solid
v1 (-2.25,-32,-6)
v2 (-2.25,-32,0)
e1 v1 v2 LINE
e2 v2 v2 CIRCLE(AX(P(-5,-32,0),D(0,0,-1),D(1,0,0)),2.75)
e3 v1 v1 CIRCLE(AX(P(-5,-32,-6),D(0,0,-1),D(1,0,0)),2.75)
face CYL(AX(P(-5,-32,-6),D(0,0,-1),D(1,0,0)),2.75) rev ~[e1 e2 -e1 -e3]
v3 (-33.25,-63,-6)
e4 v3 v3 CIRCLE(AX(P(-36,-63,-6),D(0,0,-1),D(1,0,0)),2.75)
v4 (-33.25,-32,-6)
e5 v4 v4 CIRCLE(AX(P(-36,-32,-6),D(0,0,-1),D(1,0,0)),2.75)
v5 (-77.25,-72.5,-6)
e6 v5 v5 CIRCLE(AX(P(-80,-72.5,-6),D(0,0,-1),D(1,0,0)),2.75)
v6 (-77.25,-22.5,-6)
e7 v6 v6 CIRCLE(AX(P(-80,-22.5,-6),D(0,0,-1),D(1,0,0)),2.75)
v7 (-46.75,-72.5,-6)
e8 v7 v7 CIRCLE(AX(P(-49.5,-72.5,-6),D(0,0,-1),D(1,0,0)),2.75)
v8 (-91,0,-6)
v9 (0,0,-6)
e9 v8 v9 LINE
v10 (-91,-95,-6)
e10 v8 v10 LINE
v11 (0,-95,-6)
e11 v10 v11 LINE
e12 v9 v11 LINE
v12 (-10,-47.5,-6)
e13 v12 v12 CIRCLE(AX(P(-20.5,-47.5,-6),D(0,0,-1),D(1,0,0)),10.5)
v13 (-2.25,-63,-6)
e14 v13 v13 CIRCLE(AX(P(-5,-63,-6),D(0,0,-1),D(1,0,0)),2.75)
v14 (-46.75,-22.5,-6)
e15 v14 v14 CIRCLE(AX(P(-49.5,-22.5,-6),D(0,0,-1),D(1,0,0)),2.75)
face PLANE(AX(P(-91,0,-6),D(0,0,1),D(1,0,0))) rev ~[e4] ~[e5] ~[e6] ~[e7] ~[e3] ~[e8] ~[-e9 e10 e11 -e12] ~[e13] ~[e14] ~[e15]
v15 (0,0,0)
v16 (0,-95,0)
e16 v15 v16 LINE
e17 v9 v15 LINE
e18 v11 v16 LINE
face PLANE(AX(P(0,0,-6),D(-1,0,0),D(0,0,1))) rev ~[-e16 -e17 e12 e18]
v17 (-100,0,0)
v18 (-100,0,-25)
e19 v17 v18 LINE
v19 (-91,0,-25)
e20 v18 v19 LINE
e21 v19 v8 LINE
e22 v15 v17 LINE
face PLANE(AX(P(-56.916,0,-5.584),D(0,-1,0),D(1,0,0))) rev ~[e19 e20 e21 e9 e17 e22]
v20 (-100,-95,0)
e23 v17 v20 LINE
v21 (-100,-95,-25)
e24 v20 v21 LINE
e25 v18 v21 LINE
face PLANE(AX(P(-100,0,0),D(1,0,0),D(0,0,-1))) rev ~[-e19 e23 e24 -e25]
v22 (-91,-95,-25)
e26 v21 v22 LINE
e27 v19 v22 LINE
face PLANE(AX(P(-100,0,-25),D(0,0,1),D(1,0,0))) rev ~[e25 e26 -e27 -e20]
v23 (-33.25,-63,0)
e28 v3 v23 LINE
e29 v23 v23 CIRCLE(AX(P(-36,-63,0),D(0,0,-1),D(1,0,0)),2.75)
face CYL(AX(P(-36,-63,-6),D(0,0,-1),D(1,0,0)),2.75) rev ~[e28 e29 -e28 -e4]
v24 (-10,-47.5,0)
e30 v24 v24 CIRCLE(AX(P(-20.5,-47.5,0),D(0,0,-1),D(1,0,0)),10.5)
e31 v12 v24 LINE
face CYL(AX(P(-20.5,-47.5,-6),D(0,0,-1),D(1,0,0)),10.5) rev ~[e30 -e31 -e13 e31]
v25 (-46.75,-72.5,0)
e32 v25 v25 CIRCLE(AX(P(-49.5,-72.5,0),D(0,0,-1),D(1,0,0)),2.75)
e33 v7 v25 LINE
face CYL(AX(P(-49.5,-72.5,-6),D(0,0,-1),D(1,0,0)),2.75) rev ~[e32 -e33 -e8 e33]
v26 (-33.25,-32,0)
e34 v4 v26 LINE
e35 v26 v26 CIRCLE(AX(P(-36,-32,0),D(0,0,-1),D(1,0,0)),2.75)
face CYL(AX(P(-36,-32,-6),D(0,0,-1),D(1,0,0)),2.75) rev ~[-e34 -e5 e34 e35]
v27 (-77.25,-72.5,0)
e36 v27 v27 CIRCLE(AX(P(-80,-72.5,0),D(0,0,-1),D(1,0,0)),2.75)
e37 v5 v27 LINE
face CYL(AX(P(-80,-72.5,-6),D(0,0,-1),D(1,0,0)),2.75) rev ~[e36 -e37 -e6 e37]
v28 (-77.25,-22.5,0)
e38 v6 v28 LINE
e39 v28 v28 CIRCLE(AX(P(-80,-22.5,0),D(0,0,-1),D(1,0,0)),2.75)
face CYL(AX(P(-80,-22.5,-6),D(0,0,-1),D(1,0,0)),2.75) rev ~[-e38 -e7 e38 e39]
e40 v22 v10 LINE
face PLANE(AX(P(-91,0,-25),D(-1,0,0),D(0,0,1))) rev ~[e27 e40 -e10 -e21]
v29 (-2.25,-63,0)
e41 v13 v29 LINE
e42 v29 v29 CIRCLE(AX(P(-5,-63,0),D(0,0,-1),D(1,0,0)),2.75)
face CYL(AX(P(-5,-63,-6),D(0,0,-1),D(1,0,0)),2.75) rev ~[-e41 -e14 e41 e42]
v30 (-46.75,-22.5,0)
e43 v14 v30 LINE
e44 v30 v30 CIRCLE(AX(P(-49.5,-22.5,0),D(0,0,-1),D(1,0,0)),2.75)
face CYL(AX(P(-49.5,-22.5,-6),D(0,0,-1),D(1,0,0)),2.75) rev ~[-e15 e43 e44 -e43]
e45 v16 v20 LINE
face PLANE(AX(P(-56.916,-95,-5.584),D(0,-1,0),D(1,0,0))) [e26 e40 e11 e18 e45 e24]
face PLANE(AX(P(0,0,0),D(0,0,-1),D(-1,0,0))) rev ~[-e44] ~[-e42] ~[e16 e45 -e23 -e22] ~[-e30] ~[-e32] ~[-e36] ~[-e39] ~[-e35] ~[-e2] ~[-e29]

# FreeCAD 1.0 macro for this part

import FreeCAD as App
import Part
import Sketcher
Q = App.Units.Quantity

doc = App.newDocument("Part")
body = doc.addObject("PartDesign::Body", "Body")

# Sketch on XZ plane
sketch1 = body.newObject("Sketcher::SketchObject", "Sketch")
sketch1.AttachmentSupport = (doc.getObject("XZ_Plane"), [""])
sketch1.MapMode = "FlatFace"
sketch1.addGeometry([
    Part.LineSegment(App.Vector(0, -6, 0), App.Vector(0, 0, 0)),  # 0
    Part.LineSegment(App.Vector(0, 0, 0), App.Vector(-100, 0, 0)),  # 1
    Part.LineSegment(App.Vector(-100, 0, 0), App.Vector(-100, -25, 0)),  # 2
    Part.LineSegment(App.Vector(-100, -25, 0), App.Vector(-91, -25, 0)),  # 3
    Part.LineSegment(App.Vector(-91, -25, 0), App.Vector(-91, -6, 0)),  # 4
    Part.LineSegment(App.Vector(-91, -6, 0), App.Vector(0, -6, 0)),  # 5
], False)
sketch1.addConstraint([
    Sketcher.Constraint("Coincident", 0, 2, 1, 1),
    Sketcher.Constraint("Coincident", 1, 2, 2, 1),
    Sketcher.Constraint("Coincident", 2, 2, 3, 1),
    Sketcher.Constraint("Coincident", 3, 2, 4, 1),
    Sketcher.Constraint("Coincident", 4, 2, 5, 1),
    Sketcher.Constraint("Coincident", 5, 2, 0, 1),
    Sketcher.Constraint("Vertical", 0),
    Sketcher.Constraint("Horizontal", 1),
    Sketcher.Constraint("Vertical", 2),
    Sketcher.Constraint("Horizontal", 3),
    Sketcher.Constraint("Vertical", 4),
    Sketcher.Constraint("Horizontal", 5),
    Sketcher.Constraint("Coincident", 0, 2, -1, 1),
    Sketcher.Constraint("DistanceX", 1, 2, 1, 1, Q("100 mm")),
    Sketcher.Constraint("DistanceX", 3, 1, 3, 2, Q("9 mm")),
    Sketcher.Constraint("DistanceY", 0, 1, 0, 2, Q("6 mm")),
    Sketcher.Constraint("DistanceY", 2, 2, 2, 1, Q("25 mm")),
])
pad1 = body.newObject("PartDesign::Pad", "Pad")
pad1.Profile = sketch1
pad1.Length = 95

# Sketch on XY plane
sketch2 = body.newObject("Sketcher::SketchObject", "Sketch001")
sketch2.AttachmentSupport = (doc.getObject("XY_Plane"), [""])
sketch2.MapMode = "FlatFace"
sketch2.AttachmentOffset = App.Placement(App.Vector(0, 0, -6), App.Rotation())
sketch2.addGeometry([
    Part.Circle(App.Vector(-80, -72.5, 0), App.Vector(0, 0, 1), 2.8),  # 0
    Part.Circle(App.Vector(-49.5, -72.5, 0), App.Vector(0, 0, 1), 2.8),  # 1
    Part.Circle(App.Vector(-80, -22.5, 0), App.Vector(0, 0, 1), 2.8),  # 2
    Part.Circle(App.Vector(-49.5, -22.5, 0), App.Vector(0, 0, 1), 2.8),  # 3
    Part.Circle(App.Vector(-5, -32, 0), App.Vector(0, 0, 1), 2.8),  # 4
    Part.Circle(App.Vector(-5, -63, 0), App.Vector(0, 0, 1), 2.8),  # 5
    Part.Circle(App.Vector(-36, -32, 0), App.Vector(0, 0, 1), 2.8),  # 6
    Part.Circle(App.Vector(-36, -63, 0), App.Vector(0, 0, 1), 2.8),  # 7
    Part.Circle(App.Vector(-20.5, -47.5, 0), App.Vector(0, 0, 1), 10.5),  # 8
], False)
sketch2.addConstraint([
    Sketcher.Constraint("Equal", 0, 1),
    Sketcher.Constraint("Equal", 1, 2),
    Sketcher.Constraint("Equal", 2, 3),
    Sketcher.Constraint("Equal", 3, 4),
    Sketcher.Constraint("Equal", 4, 5),
    Sketcher.Constraint("Equal", 5, 6),
    Sketcher.Constraint("Equal", 6, 7),
    Sketcher.Constraint("Horizontal", 0, 3, 1, 3),
    Sketcher.Constraint("Horizontal", 2, 3, 3, 3),
    Sketcher.Constraint("Horizontal", 4, 3, 6, 3),
    Sketcher.Constraint("Horizontal", 5, 3, 7, 3),
    Sketcher.Constraint("Vertical", 0, 3, 2, 3),
    Sketcher.Constraint("Vertical", 1, 3, 3, 3),
    Sketcher.Constraint("Vertical", 4, 3, 5, 3),
    Sketcher.Constraint("Vertical", 6, 3, 7, 3),
    Sketcher.Constraint("Diameter", 8, Q("21 mm")),
    Sketcher.Constraint("Diameter", 0, Q("5.5 mm")),
    Sketcher.Constraint("DistanceX", 0, 3, -1, 1, Q("80 mm")),
    Sketcher.Constraint("DistanceX", 4, 3, -1, 1, Q("5 mm")),
    Sketcher.Constraint("DistanceY", 4, 3, -1, 1, Q("32 mm")),
    Sketcher.Constraint("DistanceY", 5, 3, -1, 1, Q("63 mm")),
    Sketcher.Constraint("DistanceX", 6, 3, -1, 1, Q("36 mm")),
    Sketcher.Constraint("DistanceY", 0, 3, 2, 3, Q("50 mm")),
    Sketcher.Constraint("DistanceX", 1, 3, 8, 3, Q("29 mm")),
    Sketcher.Constraint("DistanceY", 1, 3, 8, 3, Q("25 mm")),
    Sketcher.Constraint("DistanceY", 0, 3, -1, 1, Q("72.5 mm")),
    Sketcher.Constraint("DistanceX", 1, 3, -1, 1, Q("49.5 mm")),
])
pocket1 = body.newObject("PartDesign::Pocket", "Pocket")
pocket1.Profile = sketch2
pocket1.Length = 6
pocket1.Reversed = True

doc.recompute()
